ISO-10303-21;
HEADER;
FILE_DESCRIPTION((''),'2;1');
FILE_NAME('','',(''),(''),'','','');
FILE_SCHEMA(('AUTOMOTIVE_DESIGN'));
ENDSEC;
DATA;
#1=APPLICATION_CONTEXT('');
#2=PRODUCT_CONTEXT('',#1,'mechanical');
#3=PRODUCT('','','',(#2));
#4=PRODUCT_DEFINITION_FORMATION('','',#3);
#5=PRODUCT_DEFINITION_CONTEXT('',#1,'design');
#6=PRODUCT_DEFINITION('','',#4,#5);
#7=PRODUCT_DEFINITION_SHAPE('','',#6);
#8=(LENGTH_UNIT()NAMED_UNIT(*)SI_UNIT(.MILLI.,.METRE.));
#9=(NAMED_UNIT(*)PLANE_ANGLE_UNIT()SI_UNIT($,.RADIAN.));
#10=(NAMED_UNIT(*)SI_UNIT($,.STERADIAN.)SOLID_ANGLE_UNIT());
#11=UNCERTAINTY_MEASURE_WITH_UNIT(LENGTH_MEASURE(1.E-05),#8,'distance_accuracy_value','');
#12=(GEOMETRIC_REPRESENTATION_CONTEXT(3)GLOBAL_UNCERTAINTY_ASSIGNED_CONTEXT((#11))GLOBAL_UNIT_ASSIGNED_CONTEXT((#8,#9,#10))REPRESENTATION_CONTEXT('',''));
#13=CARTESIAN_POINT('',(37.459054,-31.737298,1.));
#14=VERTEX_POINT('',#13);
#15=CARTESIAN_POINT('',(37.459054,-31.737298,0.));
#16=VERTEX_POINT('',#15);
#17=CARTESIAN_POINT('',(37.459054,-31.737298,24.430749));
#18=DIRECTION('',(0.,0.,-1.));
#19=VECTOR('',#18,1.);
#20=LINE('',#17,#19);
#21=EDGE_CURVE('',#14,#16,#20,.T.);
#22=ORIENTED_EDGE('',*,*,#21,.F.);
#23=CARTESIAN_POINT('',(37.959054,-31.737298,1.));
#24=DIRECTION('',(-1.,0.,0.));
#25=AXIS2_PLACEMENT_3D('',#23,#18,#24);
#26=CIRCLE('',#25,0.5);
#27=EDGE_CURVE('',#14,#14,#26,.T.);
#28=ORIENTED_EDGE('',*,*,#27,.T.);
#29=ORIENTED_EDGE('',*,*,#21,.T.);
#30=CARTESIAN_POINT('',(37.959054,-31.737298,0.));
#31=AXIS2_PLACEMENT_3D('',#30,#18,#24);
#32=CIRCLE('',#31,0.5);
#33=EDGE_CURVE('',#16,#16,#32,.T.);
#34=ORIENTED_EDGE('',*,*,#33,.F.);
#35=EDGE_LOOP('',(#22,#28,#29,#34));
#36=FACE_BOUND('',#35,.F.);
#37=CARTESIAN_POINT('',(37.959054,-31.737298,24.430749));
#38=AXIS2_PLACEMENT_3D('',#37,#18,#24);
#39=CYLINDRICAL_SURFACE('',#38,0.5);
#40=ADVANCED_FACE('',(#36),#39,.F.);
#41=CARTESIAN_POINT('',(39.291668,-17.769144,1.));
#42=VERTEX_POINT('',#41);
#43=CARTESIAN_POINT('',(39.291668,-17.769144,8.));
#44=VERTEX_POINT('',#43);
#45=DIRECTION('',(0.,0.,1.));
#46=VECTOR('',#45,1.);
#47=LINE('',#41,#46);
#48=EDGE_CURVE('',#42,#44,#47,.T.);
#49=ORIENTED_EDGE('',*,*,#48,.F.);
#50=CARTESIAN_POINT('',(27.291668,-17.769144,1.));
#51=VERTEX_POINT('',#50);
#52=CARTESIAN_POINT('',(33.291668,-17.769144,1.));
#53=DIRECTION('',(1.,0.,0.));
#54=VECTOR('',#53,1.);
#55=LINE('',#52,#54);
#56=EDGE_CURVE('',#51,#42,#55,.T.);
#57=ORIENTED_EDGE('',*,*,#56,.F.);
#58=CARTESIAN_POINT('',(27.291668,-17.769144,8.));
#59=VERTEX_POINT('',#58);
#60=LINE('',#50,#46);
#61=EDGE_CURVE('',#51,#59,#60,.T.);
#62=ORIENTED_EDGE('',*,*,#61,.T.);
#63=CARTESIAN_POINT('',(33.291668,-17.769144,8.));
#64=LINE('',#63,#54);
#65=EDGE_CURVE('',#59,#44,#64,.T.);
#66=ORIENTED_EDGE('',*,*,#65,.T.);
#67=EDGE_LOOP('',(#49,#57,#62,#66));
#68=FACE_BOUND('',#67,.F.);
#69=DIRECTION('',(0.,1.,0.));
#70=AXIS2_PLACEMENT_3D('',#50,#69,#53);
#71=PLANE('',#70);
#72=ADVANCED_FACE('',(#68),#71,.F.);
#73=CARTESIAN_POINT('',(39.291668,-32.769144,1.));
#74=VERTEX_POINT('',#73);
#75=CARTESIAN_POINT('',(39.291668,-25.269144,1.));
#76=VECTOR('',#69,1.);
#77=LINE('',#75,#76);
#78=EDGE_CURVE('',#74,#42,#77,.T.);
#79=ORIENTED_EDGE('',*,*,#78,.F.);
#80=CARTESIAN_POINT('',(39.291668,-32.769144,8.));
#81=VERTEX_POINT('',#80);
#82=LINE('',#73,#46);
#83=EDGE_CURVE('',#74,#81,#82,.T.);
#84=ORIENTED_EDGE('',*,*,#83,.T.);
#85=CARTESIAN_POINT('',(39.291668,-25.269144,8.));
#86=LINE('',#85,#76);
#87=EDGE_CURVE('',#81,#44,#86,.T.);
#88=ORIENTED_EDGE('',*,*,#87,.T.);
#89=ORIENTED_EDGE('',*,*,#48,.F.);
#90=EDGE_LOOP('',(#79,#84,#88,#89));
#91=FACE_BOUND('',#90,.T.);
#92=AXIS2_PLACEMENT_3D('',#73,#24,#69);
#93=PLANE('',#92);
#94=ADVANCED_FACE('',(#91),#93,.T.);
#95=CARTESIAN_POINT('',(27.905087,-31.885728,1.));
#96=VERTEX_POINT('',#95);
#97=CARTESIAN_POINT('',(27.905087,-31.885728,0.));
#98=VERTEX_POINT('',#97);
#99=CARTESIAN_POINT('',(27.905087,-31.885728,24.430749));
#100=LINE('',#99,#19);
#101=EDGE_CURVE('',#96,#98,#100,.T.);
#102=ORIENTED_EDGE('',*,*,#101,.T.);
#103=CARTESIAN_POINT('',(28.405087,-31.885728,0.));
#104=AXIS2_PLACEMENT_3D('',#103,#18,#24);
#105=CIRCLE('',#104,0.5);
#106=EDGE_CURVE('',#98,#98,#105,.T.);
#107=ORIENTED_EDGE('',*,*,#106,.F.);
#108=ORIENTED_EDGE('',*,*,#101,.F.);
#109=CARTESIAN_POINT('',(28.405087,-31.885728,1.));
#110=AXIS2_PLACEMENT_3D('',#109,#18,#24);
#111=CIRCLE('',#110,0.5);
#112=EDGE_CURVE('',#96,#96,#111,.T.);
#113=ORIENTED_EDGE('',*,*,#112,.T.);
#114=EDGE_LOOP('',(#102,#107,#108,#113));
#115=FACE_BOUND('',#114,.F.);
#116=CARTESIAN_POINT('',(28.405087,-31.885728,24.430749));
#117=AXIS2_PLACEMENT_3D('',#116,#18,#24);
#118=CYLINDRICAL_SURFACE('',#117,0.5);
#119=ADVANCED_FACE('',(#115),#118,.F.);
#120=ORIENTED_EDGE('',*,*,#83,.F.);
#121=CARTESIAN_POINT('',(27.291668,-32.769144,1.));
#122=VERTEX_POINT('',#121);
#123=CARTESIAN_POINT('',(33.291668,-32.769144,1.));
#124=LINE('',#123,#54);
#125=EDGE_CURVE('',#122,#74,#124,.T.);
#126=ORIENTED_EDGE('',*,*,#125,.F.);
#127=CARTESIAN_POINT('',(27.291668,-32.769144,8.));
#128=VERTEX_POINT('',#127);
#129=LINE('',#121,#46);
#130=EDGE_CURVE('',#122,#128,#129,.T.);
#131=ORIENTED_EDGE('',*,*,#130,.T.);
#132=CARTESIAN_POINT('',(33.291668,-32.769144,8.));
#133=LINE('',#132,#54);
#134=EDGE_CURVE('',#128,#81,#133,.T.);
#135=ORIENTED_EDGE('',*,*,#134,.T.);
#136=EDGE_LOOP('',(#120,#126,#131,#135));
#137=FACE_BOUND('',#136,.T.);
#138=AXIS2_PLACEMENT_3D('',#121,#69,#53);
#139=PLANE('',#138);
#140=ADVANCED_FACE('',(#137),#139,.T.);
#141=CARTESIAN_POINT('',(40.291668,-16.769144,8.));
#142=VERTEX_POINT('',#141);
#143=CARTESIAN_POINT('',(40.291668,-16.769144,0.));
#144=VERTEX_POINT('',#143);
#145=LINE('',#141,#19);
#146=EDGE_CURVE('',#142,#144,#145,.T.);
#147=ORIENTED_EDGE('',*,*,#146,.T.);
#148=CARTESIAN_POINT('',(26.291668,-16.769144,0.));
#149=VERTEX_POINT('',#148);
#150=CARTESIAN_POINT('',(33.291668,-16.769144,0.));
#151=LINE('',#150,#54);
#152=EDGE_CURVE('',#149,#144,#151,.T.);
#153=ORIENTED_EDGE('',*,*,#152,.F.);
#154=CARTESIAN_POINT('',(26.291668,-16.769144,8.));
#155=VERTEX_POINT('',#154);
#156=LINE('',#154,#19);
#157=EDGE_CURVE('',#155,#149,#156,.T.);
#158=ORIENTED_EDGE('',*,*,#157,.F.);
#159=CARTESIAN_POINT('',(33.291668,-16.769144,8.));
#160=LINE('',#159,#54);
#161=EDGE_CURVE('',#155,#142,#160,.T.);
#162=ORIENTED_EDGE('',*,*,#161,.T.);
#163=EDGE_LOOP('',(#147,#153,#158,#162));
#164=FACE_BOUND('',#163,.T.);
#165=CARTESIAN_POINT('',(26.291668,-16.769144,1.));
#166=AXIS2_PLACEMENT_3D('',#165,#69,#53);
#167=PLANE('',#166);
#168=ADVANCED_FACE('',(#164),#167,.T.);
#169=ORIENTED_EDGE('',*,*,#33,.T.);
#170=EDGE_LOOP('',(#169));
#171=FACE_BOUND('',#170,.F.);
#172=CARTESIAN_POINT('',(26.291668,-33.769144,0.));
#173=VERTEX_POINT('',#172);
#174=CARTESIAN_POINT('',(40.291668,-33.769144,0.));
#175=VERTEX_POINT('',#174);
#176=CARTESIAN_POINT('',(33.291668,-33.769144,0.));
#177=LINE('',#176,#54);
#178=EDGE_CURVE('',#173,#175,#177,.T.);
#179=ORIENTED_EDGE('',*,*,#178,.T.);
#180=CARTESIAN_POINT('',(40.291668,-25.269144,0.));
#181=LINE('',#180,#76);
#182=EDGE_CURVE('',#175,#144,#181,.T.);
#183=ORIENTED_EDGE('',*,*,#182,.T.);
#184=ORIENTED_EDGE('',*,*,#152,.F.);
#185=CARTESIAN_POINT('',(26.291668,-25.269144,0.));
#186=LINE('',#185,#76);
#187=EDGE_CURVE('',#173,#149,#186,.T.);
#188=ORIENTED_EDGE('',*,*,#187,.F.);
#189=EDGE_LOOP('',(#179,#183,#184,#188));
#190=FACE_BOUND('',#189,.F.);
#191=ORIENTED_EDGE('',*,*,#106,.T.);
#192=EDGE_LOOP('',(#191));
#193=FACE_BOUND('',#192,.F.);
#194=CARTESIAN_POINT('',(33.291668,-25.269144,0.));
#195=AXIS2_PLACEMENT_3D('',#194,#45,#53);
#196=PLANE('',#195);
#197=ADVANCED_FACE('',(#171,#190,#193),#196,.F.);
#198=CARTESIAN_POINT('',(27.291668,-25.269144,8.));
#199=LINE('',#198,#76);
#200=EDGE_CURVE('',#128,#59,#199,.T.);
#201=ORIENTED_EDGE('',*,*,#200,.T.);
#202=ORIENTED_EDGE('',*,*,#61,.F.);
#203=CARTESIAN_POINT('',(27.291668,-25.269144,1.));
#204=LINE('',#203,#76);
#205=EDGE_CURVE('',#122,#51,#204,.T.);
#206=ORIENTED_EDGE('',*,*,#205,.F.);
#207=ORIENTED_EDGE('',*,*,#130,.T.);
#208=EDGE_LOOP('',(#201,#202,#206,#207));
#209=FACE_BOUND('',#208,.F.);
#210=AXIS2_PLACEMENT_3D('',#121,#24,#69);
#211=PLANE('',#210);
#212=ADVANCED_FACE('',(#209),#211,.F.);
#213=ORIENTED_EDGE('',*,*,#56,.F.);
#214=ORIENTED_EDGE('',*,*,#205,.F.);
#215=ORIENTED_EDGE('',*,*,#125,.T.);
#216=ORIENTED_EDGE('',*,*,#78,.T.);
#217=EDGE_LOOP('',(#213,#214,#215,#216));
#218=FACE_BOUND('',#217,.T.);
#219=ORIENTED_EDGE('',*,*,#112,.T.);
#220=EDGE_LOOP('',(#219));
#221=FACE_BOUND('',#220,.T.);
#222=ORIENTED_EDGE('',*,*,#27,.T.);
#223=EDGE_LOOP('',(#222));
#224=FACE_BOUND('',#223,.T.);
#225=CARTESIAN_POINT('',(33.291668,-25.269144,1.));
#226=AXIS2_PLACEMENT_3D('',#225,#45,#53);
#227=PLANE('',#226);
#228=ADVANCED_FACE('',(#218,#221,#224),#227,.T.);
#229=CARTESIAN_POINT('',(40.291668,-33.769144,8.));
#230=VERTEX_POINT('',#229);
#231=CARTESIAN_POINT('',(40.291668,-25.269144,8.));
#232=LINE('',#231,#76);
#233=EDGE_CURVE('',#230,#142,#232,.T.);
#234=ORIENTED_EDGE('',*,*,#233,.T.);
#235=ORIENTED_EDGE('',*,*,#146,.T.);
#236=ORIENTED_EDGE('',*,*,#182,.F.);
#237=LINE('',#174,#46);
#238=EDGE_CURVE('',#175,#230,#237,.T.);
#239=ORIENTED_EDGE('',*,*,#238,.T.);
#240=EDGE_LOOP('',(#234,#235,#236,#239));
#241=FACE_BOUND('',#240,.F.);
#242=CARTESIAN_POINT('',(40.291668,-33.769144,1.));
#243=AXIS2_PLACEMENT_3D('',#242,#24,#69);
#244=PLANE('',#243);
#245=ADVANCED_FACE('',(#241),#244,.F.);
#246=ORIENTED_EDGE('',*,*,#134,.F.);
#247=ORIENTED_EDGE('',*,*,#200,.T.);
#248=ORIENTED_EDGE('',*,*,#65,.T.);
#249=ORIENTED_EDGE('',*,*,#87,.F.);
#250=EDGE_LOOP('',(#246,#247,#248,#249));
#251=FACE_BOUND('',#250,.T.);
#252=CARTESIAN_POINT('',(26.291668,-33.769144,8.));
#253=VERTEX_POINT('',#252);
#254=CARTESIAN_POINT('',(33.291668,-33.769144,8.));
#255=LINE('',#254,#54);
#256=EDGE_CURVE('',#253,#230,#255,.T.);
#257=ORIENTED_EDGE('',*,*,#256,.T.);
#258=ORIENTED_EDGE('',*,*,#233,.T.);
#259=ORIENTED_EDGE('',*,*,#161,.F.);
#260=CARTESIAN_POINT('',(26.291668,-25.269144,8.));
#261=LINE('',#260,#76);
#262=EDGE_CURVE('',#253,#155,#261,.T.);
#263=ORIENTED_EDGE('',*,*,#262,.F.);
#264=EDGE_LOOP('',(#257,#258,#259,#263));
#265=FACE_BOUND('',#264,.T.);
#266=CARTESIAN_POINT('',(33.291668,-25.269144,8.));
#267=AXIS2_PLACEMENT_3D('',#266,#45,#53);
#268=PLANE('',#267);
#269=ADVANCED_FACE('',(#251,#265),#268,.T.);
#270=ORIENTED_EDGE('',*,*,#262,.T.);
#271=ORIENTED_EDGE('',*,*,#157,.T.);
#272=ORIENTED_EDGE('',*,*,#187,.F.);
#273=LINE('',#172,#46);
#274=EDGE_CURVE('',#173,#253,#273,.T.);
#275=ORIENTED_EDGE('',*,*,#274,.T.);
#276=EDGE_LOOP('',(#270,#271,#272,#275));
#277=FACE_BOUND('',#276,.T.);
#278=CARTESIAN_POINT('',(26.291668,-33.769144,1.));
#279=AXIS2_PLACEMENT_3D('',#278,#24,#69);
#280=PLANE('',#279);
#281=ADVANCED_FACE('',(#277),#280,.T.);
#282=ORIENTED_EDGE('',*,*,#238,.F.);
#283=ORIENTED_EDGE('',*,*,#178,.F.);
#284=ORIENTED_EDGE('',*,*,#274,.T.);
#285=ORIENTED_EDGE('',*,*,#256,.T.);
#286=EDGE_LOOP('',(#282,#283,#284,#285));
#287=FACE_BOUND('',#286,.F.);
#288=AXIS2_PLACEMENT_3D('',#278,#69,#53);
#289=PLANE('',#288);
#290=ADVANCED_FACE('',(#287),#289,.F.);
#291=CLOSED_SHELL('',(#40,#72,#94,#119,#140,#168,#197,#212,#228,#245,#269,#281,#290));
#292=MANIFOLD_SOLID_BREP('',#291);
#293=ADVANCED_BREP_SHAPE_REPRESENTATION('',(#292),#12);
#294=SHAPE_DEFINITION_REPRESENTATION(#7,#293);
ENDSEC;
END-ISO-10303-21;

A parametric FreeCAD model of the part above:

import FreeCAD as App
import Part
import Sketcher
Q = App.Units.Quantity


def add_polygon(sketch, points):
    """Adds a closed chain of lines whose ends are joined by coincident constraints."""
    first, n = sketch.GeometryCount, len(points)
    for a, b in zip(points, points[1:] + points[:1]):
        sketch.addGeometry(Part.LineSegment(App.Vector(*a, 0), App.Vector(*b, 0)), False)
    for i in range(n):
        sketch.addConstraint(Sketcher.Constraint("Coincident", first + i, 2, first + (i + 1) % n, 1))

doc = App.newDocument("Part")
body = doc.addObject("PartDesign::Body", "Body")

sketch1 = body.newObject("Sketcher::SketchObject", "Sketch")
sketch1.AttachmentSupport = (doc.getObject("XY_Plane"), [""])
sketch1.MapMode = "FlatFace"
add_polygon(sketch1, [(26.291668, -16.769144), (26.291668, -33.769144), (40.291668, -33.769144), (40.291668, -16.769144)])
sketch1.addConstraint(Sketcher.Constraint("Vertical", 0))
sketch1.addConstraint(Sketcher.Constraint("Horizontal", 1))
sketch1.addConstraint(Sketcher.Constraint("Vertical", 2))
sketch1.addConstraint(Sketcher.Constraint("Horizontal", 3))
sketch1.addConstraint(Sketcher.Constraint("DistanceX", 1, 1, 1, 2, Q("14 mm")))
sketch1.addConstraint(Sketcher.Constraint("DistanceY", 0, 2, 0, 1, Q("17 mm")))
sketch1.addConstraint(Sketcher.Constraint("DistanceX", -1, 1, 0, 2, Q("26.291668 mm")))
sketch1.addConstraint(Sketcher.Constraint("DistanceY", 0, 2, -1, 1, Q("33.769144 mm")))
pad1 = body.newObject("PartDesign::Pad", "Pad")
pad1.Profile = sketch1
pad1.Length = 1

sketch2 = body.newObject("Sketcher::SketchObject", "Sketch001")
sketch2.AttachmentSupport = (doc.getObject("XY_Plane"), [""])
sketch2.MapMode = "FlatFace"
sketch2.AttachmentOffset = App.Placement(App.Vector(0, 0, 1), App.Rotation())
add_polygon(sketch2, [(26.291668, -16.769144), (26.291668, -33.769144), (40.291668, -33.769144), (40.291668, -16.769144)])
add_polygon(sketch2, [(39.291668, -32.769144), (27.291668, -32.769144), (27.291668, -17.769144), (39.291668, -17.769144)])
sketch2.addConstraint(Sketcher.Constraint("Vertical", 0))
sketch2.addConstraint(Sketcher.Constraint("Horizontal", 1))
sketch2.addConstraint(Sketcher.Constraint("Vertical", 2))
sketch2.addConstraint(Sketcher.Constraint("Horizontal", 3))
sketch2.addConstraint(Sketcher.Constraint("Horizontal", 4))
sketch2.addConstraint(Sketcher.Constraint("Vertical", 5))
sketch2.addConstraint(Sketcher.Constraint("Horizontal", 6))
sketch2.addConstraint(Sketcher.Constraint("Vertical", 7))
sketch2.addConstraint(Sketcher.Constraint("DistanceX", 1, 1, 1, 2, Q("14 mm")))
sketch2.addConstraint(Sketcher.Constraint("DistanceX", 4, 2, 4, 1, Q("12 mm")))
sketch2.addConstraint(Sketcher.Constraint("DistanceY", 0, 2, 0, 1, Q("17 mm")))
sketch2.addConstraint(Sketcher.Constraint("DistanceY", 5, 1, 5, 2, Q("15 mm")))
sketch2.addConstraint(Sketcher.Constraint("DistanceX", 0, 2, 4, 2, Q("1 mm")))
sketch2.addConstraint(Sketcher.Constraint("DistanceY", 0, 2, 4, 2, Q("1 mm")))
sketch2.addConstraint(Sketcher.Constraint("DistanceX", -1, 1, 0, 2, Q("26.291668 mm")))
sketch2.addConstraint(Sketcher.Constraint("DistanceY", 0, 2, -1, 1, Q("33.769144 mm")))
pad2 = body.newObject("PartDesign::Pad", "Pad001")
pad2.Profile = sketch2
pad2.Length = 7

sketch3 = body.newObject("Sketcher::SketchObject", "Sketch002")
sketch3.AttachmentSupport = (doc.getObject("XY_Plane"), [""])
sketch3.MapMode = "FlatFace"
sketch3.AttachmentOffset = App.Placement(App.Vector(0, 0, 1), App.Rotation())
sketch3.addGeometry(Part.Circle(App.Vector(28.405087, -31.885728, 0), App.Vector(0, 0, 1), 0.5), False)
sketch3.addGeometry(Part.Circle(App.Vector(37.959054, -31.737298, 0), App.Vector(0, 0, 1), 0.5), False)
sketch3.addConstraint(Sketcher.Constraint("Equal", 0, 1))
sketch3.addConstraint(Sketcher.Constraint("Diameter", 0, Q("1 mm")))
sketch3.addConstraint(Sketcher.Constraint("DistanceY", 0, 3, -1, 1, Q("31.885728 mm")))
sketch3.addConstraint(Sketcher.Constraint("DistanceY", 0, 3, 1, 3, Q("0.14843 mm")))
sketch3.addConstraint(Sketcher.Constraint("DistanceX", -1, 1, 0, 3, Q("28.405087 mm")))
sketch3.addConstraint(Sketcher.Constraint("DistanceX", -1, 1, 1, 3, Q("37.959054 mm")))
doc.recompute()
hole = body.newObject("PartDesign::Hole", "Hole")
hole.Profile = sketch3
hole.ThreadType = "None"
hole.Diameter = 1
hole.DepthType = "ThroughAll"

doc.recompute()
